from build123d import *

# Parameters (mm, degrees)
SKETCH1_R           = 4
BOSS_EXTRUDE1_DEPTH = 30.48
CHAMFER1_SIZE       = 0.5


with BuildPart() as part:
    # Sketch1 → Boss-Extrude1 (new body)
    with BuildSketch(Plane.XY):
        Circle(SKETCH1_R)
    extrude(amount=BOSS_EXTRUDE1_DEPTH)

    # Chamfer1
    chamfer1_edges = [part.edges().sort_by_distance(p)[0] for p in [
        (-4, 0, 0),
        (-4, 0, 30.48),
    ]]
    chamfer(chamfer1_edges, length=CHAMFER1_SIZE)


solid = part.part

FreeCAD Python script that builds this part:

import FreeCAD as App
import Part
import Sketcher

V = App.Vector


def edges_at(feature, points):
    """Names of the edges that pass closest to the given points."""
    edges = feature.Shape.Edges
    near = lambda p: min(range(len(edges)), key=lambda i: edges[i].distToShape(Part.Vertex(*p))[0])
    return sorted({f"Edge{near(p) + 1}" for p in points})

doc = App.newDocument("Part")
body = doc.addObject("PartDesign::Body", "Body")

# Sketch on XY plane
sketch1 = body.newObject("Sketcher::SketchObject", "Sketch")
sketch1.AttachmentSupport = (doc.getObject("XY_Plane"), [""])
sketch1.MapMode = "FlatFace"
sketch1.addGeometry(Part.Circle(V(0, 0, 0), V(0, 0, 1), 4), False)
sketch1.addConstraint(Sketcher.Constraint("Coincident", 0, 3, -1, 1))
sketch1.addConstraint(Sketcher.Constraint("Diameter", 0, 8.0))
pad1 = body.newObject("PartDesign::Pad", "Pad")
pad1.Profile = sketch1
pad1.Length = 30.48
doc.recompute()

chamfer = body.newObject("PartDesign::Chamfer", "Chamfer")
chamfer.Base = (pad1, edges_at(pad1, [(-4, 0, 0), (-4, 0, 30.48)]))
chamfer.Size = 0.5

doc.recompute()
